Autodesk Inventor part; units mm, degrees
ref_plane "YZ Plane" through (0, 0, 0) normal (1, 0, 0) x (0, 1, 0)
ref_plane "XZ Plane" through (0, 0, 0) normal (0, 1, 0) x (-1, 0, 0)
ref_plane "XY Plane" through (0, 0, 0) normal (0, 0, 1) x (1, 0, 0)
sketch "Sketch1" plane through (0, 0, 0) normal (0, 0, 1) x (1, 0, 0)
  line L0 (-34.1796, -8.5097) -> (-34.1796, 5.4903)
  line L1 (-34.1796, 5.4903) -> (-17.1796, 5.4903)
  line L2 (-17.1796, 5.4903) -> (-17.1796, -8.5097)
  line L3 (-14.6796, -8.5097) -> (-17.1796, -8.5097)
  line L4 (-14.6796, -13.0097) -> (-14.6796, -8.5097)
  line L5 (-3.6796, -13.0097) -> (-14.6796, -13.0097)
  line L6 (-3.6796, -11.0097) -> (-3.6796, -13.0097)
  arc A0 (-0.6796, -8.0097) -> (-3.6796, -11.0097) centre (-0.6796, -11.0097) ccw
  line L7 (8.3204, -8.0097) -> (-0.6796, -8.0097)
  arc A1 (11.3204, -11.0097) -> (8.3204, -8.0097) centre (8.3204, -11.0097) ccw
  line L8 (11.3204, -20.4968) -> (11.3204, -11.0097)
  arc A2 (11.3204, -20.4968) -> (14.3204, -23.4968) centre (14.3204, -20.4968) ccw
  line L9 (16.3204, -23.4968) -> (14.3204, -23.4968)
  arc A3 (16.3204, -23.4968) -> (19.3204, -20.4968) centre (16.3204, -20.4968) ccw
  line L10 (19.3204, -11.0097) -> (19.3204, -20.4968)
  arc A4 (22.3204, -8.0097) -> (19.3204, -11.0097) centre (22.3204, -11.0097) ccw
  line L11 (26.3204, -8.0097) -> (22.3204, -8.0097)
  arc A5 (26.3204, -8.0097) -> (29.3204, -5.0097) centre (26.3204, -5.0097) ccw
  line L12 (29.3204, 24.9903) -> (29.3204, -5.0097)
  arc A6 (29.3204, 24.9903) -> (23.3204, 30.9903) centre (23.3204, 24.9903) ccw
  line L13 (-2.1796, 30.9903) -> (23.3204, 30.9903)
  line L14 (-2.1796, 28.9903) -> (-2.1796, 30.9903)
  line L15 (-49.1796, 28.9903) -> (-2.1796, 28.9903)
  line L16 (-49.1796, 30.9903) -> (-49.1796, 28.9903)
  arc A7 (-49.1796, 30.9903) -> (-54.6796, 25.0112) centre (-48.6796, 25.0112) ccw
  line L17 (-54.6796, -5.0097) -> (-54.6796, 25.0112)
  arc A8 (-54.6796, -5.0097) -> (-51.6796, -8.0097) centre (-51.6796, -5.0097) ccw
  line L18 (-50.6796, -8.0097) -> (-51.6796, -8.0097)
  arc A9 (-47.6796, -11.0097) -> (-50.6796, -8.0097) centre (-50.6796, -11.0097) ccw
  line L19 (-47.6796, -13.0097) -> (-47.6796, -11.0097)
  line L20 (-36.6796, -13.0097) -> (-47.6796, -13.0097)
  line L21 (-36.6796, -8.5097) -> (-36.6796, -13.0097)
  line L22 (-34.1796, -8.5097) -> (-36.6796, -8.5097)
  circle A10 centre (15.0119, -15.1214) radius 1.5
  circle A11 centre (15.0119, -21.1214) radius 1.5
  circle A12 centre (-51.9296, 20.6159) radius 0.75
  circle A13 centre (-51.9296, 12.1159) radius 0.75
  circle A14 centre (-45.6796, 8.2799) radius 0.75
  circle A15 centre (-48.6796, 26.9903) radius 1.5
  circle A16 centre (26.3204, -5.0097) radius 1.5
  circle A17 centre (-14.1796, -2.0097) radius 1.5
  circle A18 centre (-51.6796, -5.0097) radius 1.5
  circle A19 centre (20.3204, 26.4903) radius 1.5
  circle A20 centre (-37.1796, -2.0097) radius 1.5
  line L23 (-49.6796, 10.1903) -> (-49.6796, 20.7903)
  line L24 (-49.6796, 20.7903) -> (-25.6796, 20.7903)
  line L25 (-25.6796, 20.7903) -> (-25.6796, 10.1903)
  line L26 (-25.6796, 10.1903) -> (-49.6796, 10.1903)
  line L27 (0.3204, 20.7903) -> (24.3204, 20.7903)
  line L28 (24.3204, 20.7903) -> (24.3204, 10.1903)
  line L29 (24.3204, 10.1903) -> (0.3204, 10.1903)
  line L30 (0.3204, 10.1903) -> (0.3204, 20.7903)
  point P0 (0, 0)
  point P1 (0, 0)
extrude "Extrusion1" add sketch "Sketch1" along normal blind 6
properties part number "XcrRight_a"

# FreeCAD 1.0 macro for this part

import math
import FreeCAD as App
import Part
import Sketcher

V = App.Vector
Q = App.Units.Quantity


def add_polygon(sketch, points):
    """Adds a closed chain of lines whose ends are joined by coincident constraints."""
    first, n = sketch.GeometryCount, len(points)
    for a, b in zip(points, points[1:] + points[:1]):
        sketch.addGeometry(Part.LineSegment(App.Vector(*a, 0), App.Vector(*b, 0)), False)
    for i in range(n):
        sketch.addConstraint(Sketcher.Constraint("Coincident", first + i, 2, first + (i + 1) % n, 1))

doc = App.newDocument("Part")
body = doc.addObject("PartDesign::Body", "Body")

# Sketch on XY plane
sketch1 = body.newObject("Sketcher::SketchObject", "Sketch")
sketch1.AttachmentSupport = (doc.getObject("XY_Plane"), [""])
sketch1.MapMode = "FlatFace"
sketch1.addGeometry(Part.LineSegment(V(-36.7, -8.5, 0), V(-34.2, -8.5, 0)), False)  # 0
sketch1.addGeometry(Part.LineSegment(V(-34.2, -8.5, 0), V(-34.2, 5.5, 0)), False)  # 1
sketch1.addGeometry(Part.LineSegment(V(-34.2, 5.5, 0), V(-17.2, 5.5, 0)), False)  # 2
sketch1.addGeometry(Part.LineSegment(V(-17.2, 5.5, 0), V(-17.2, -8.5, 0)), False)  # 3
sketch1.addGeometry(Part.LineSegment(V(-17.2, -8.5, 0), V(-14.7, -8.5, 0)), False)  # 4
sketch1.addGeometry(Part.LineSegment(V(-14.7, -8.5, 0), V(-14.7, -13, 0)), False)  # 5
sketch1.addGeometry(Part.LineSegment(V(-14.7, -13, 0), V(-3.7, -13, 0)), False)  # 6
sketch1.addGeometry(Part.LineSegment(V(-3.7, -13, 0), V(-3.7, -11, 0)), False)  # 7
sketch1.addGeometry(Part.ArcOfCircle(Part.Circle(V(-0.7, -11, 0), V(0, 0, 1), 3), math.radians(90), math.radians(180)), False)  # 8
sketch1.addGeometry(Part.LineSegment(V(-0.7, -8, 0), V(8.3, -8, 0)), False)  # 9
sketch1.addGeometry(Part.ArcOfCircle(Part.Circle(V(8.3, -11, 0), V(0, 0, 1), 3), math.radians(0), math.radians(90)), False)  # 10
sketch1.addGeometry(Part.LineSegment(V(11.3, -11, 0), V(11.3, -20.5, 0)), False)  # 11
sketch1.addGeometry(Part.ArcOfCircle(Part.Circle(V(14.3, -20.5, 0), V(0, 0, 1), 3), math.radians(180), math.radians(270)), False)  # 12
sketch1.addGeometry(Part.LineSegment(V(14.3, -23.5, 0), V(16.3, -23.5, 0)), False)  # 13
sketch1.addGeometry(Part.ArcOfCircle(Part.Circle(V(16.3, -20.5, 0), V(0, 0, 1), 3), math.radians(-90), math.radians(0)), False)  # 14
sketch1.addGeometry(Part.LineSegment(V(19.3, -20.5, 0), V(19.3, -11, 0)), False)  # 15
sketch1.addGeometry(Part.ArcOfCircle(Part.Circle(V(22.3, -11, 0), V(0, 0, 1), 3), math.radians(90), math.radians(180)), False)  # 16
sketch1.addGeometry(Part.LineSegment(V(22.3, -8, 0), V(26.3, -8, 0)), False)  # 17
sketch1.addGeometry(Part.ArcOfCircle(Part.Circle(V(26.3, -5, 0), V(0, 0, 1), 3), math.radians(-90), math.radians(0)), False)  # 18
sketch1.addGeometry(Part.LineSegment(V(29.3, -5, 0), V(29.3, 25, 0)), False)  # 19
sketch1.addGeometry(Part.ArcOfCircle(Part.Circle(V(23.3, 25, 0), V(0, 0, 1), 6), math.radians(0), math.radians(90)), False)  # 20
sketch1.addGeometry(Part.LineSegment(V(23.3, 31, 0), V(-2.2, 31, 0)), False)  # 21
sketch1.addGeometry(Part.LineSegment(V(-2.2, 31, 0), V(-2.2, 29, 0)), False)  # 22
sketch1.addGeometry(Part.LineSegment(V(-2.2, 29, 0), V(-49.2, 29, 0)), False)  # 23
sketch1.addGeometry(Part.LineSegment(V(-49.2, 29, 0), V(-49.2, 31, 0)), False)  # 24
sketch1.addGeometry(Part.ArcOfCircle(Part.Circle(V(-48.7, 25, 0), V(0, 0, 1), 6), math.radians(95), math.radians(180)), False)  # 25
sketch1.addGeometry(Part.LineSegment(V(-54.7, 25, 0), V(-54.7, -5, 0)), False)  # 26
sketch1.addGeometry(Part.ArcOfCircle(Part.Circle(V(-51.7, -5, 0), V(0, 0, 1), 3), math.radians(180), math.radians(270)), False)  # 27
sketch1.addGeometry(Part.LineSegment(V(-51.7, -8, 0), V(-50.7, -8, 0)), False)  # 28
sketch1.addGeometry(Part.ArcOfCircle(Part.Circle(V(-50.7, -11, 0), V(0, 0, 1), 3), math.radians(0), math.radians(90)), False)  # 29
sketch1.addGeometry(Part.LineSegment(V(-47.7, -11, 0), V(-47.7, -13, 0)), False)  # 30
sketch1.addGeometry(Part.LineSegment(V(-47.7, -13, 0), V(-36.7, -13, 0)), False)  # 31
sketch1.addGeometry(Part.LineSegment(V(-36.7, -13, 0), V(-36.7, -8.5, 0)), False)  # 32
sketch1.addGeometry(Part.Circle(V(-51.7, -5, 0), V(0, 0, 1), 1.5), False)  # 33
sketch1.addGeometry(Part.Circle(V(-37.2, -2, 0), V(0, 0, 1), 1.5), False)  # 34
sketch1.addGeometry(Part.Circle(V(-14.2, -2, 0), V(0, 0, 1), 1.5), False)  # 35
sketch1.addGeometry(Part.Circle(V(15, -21.1, 0), V(0, 0, 1), 1.5), False)  # 36
sketch1.addGeometry(Part.Circle(V(15, -15.1, 0), V(0, 0, 1), 1.5), False)  # 37
sketch1.addGeometry(Part.Circle(V(26.3, -5, 0), V(0, 0, 1), 1.5), False)  # 38
sketch1.addGeometry(Part.Circle(V(-45.7, 8.3, 0), V(0, 0, 1), 0.8), False)  # 39
sketch1.addGeometry(Part.Circle(V(-51.9, 12.1, 0), V(0, 0, 1), 0.8), False)  # 40
add_polygon(sketch1, [(-25.7, 10.2), (-49.7, 10.2), (-49.7, 20.8), (-25.7, 20.8)])  # lines 41-44
sketch1.addGeometry(Part.Circle(V(-51.9, 20.6, 0), V(0, 0, 1), 0.8), False)  # 45
sketch1.addGeometry(Part.Circle(V(-48.7, 27, 0), V(0, 0, 1), 1.5), False)  # 46
add_polygon(sketch1, [(0.3, 10.2), (0.3, 20.8), (24.3, 20.8), (24.3, 10.2)])  # lines 47-50
sketch1.addGeometry(Part.Circle(V(20.3, 26.5, 0), V(0, 0, 1), 1.5), False)  # 51
sketch1.addConstraint([
    Sketcher.Constraint("Coincident", 0, 2, 1, 1),
    Sketcher.Constraint("Coincident", 1, 2, 2, 1),
    Sketcher.Constraint("Coincident", 2, 2, 3, 1),
    Sketcher.Constraint("Coincident", 3, 2, 4, 1),
    Sketcher.Constraint("Coincident", 4, 2, 5, 1),
    Sketcher.Constraint("Coincident", 5, 2, 6, 1),
    Sketcher.Constraint("Coincident", 6, 2, 7, 1),
    Sketcher.Constraint("Tangent", 7, 2, 8, 2),
    Sketcher.Constraint("Tangent", 8, 1, 9, 1),
    Sketcher.Constraint("Tangent", 9, 2, 10, 2),
    Sketcher.Constraint("Tangent", 10, 1, 11, 1),
    Sketcher.Constraint("Tangent", 11, 2, 12, 1),
    Sketcher.Constraint("Tangent", 12, 2, 13, 1),
    Sketcher.Constraint("Tangent", 13, 2, 14, 1),
    Sketcher.Constraint("Tangent", 14, 2, 15, 1),
    Sketcher.Constraint("Tangent", 15, 2, 16, 2),
    Sketcher.Constraint("Tangent", 16, 1, 17, 1),
    Sketcher.Constraint("Tangent", 17, 2, 18, 1),
    Sketcher.Constraint("Tangent", 18, 2, 19, 1),
    Sketcher.Constraint("Tangent", 19, 2, 20, 1),
    Sketcher.Constraint("Tangent", 20, 2, 21, 1),
    Sketcher.Constraint("Coincident", 21, 2, 22, 1),
    Sketcher.Constraint("Coincident", 22, 2, 23, 1),
    Sketcher.Constraint("Coincident", 23, 2, 24, 1),
    Sketcher.Constraint("Coincident", 24, 2, 25, 1),
    Sketcher.Constraint("Tangent", 25, 2, 26, 1),
    Sketcher.Constraint("Tangent", 26, 2, 27, 1),
    Sketcher.Constraint("Tangent", 27, 2, 28, 1),
    Sketcher.Constraint("Tangent", 28, 2, 29, 2),
    Sketcher.Constraint("Tangent", 29, 1, 30, 1),
    Sketcher.Constraint("Coincident", 30, 2, 31, 1),
    Sketcher.Constraint("Coincident", 31, 2, 32, 1),
    Sketcher.Constraint("Coincident", 32, 2, 0, 1),
    Sketcher.Constraint("Horizontal", 0),
    Sketcher.Constraint("Vertical", 1),
    Sketcher.Constraint("Horizontal", 2),
    Sketcher.Constraint("Vertical", 3),
    Sketcher.Constraint("Horizontal", 4),
    Sketcher.Constraint("Vertical", 5),
    Sketcher.Constraint("Horizontal", 6),
    Sketcher.Constraint("Vertical", 7),
    Sketcher.Constraint("Horizontal", 9),
    Sketcher.Constraint("Vertical", 11),
    Sketcher.Constraint("Horizontal", 13),
    Sketcher.Constraint("Vertical", 15),
    Sketcher.Constraint("Horizontal", 17),
    Sketcher.Constraint("Vertical", 19),
    Sketcher.Constraint("Horizontal", 21),
    Sketcher.Constraint("Vertical", 22),
    Sketcher.Constraint("Horizontal", 23),
    Sketcher.Constraint("Vertical", 24),
    Sketcher.Constraint("Vertical", 26),
    Sketcher.Constraint("Horizontal", 28),
    Sketcher.Constraint("Vertical", 30),
    Sketcher.Constraint("Horizontal", 31),
    Sketcher.Constraint("Vertical", 32),
    Sketcher.Constraint("Horizontal", 41),
    Sketcher.Constraint("Vertical", 42),
    Sketcher.Constraint("Horizontal", 43),
    Sketcher.Constraint("Vertical", 44),
    Sketcher.Constraint("Vertical", 47),
    Sketcher.Constraint("Horizontal", 48),
    Sketcher.Constraint("Vertical", 49),
    Sketcher.Constraint("Horizontal", 50),
    Sketcher.Constraint("Coincident", 33, 3, 27, 3),
    Sketcher.Constraint("Coincident", 38, 3, 18, 3),
    Sketcher.Constraint("Equal", 8, 10),
    Sketcher.Constraint("Equal", 10, 12),
    Sketcher.Constraint("Equal", 12, 14),
    Sketcher.Constraint("Equal", 14, 16),
    Sketcher.Constraint("Equal", 16, 18),
    Sketcher.Constraint("Equal", 20, 25),
    Sketcher.Constraint("Equal", 18, 27),
    Sketcher.Constraint("Equal", 27, 29),
    Sketcher.Constraint("Equal", 33, 34),
    Sketcher.Constraint("Equal", 34, 35),
    Sketcher.Constraint("Equal", 35, 36),
    Sketcher.Constraint("Equal", 36, 37),
    Sketcher.Constraint("Equal", 37, 38),
    Sketcher.Constraint("Equal", 39, 40),
    Sketcher.Constraint("Equal", 40, 45),
    Sketcher.Constraint("Equal", 38, 46),
    Sketcher.Constraint("Equal", 46, 51),
    Sketcher.Constraint("Horizontal", 10, 3, 16, 3),
    Sketcher.Constraint("Horizontal", 18, 3, 27, 3),
    Sketcher.Constraint("Horizontal", 34, 3, 35, 3),
    Sketcher.Constraint("Horizontal", 0, 2, 3, 2),
    Sketcher.Constraint("Horizontal", 21, 2, 24, 2),
    Sketcher.Constraint("Horizontal", 6, 2, 30, 2),
    Sketcher.Constraint("Horizontal", 43, 2, 47, 2),
    Sketcher.Constraint("Horizontal", 44, 2, 49, 2),
    Sketcher.Constraint("Vertical", 36, 3, 37, 3),
    Sketcher.Constraint("Vertical", 40, 3, 45, 3),
    Sketcher.Constraint("Vertical", 25, 3, 46, 3),
    Sketcher.Constraint("Equal", 0, 4),
    Sketcher.Constraint("Equal", 6, 31),
    Sketcher.Constraint("Equal", 43, 48),
    Sketcher.Constraint("Equal", 13, 7),
    Sketcher.Constraint("Equal", 7, 22),
    Sketcher.Constraint("Diameter", 33, Q("3 mm")),
    Sketcher.Constraint("Radius", 8, Q("3 mm")),
    Sketcher.Constraint("Radius", 20, Q("6 mm")),
    Sketcher.Constraint("Diameter", 39, Q("1.5 mm")),
    Sketcher.Constraint("DistanceX", 2, 1, 2, 2, Q("17 mm")),
    Sketcher.Constraint("DistanceX", 6, 1, 6, 2, Q("11 mm")),
    Sketcher.Constraint("DistanceX", 9, 1, 9, 2, Q("9 mm")),
    Sketcher.Constraint("DistanceX", 13, 1, 13, 2, Q("2 mm")),
    Sketcher.Constraint("DistanceX", 17, 1, 17, 2, Q("4 mm")),
    Sketcher.Constraint("DistanceX", 23, 2, 23, 1, Q("47 mm")),
    Sketcher.Constraint("DistanceX", 28, 1, 28, 2, Q("1 mm")),
    Sketcher.Constraint("DistanceX", 41, 2, 41, 1, Q("24 mm")),
    Sketcher.Constraint("DistanceY", 1, 1, 1, 2, Q("14 mm")),
    Sketcher.Constraint("DistanceY", 19, 1, 19, 2, Q("30 mm")),
    Sketcher.Constraint("DistanceX", 0, 1, 0, 2, Q("2.5 mm")),
    Sketcher.Constraint("DistanceX", 21, 2, 21, 1, Q("25.5 mm")),
    Sketcher.Constraint("DistanceY", 5, 2, 5, 1, Q("4.5 mm")),
    Sketcher.Constraint("DistanceY", 42, 1, 42, 2, Q("10.6 mm")),
    Sketcher.Constraint("DistanceY", 11, 2, 11, 1, Q("9.487 mm")),
    Sketcher.Constraint("DistanceY", -1, 1, 39, 3, Q("8.28 mm")),
    Sketcher.Constraint("DistanceX", -1, 1, 36, 3, Q("15.012 mm")),
    Sketcher.Constraint("DistanceY", -1, 1, 40, 3, Q("12.116 mm")),
    Sketcher.Constraint("DistanceY", -1, 1, 45, 3, Q("20.616 mm")),
    Sketcher.Constraint("DistanceX", 8, 3, -1, 1, Q("0.6796 mm")),
    Sketcher.Constraint("DistanceY", 8, 3, -1, 1, Q("11.0097 mm")),
    Sketcher.Constraint("DistanceX", 34, 3, -1, 1, Q("37.1796 mm")),
    Sketcher.Constraint("DistanceY", 34, 3, -1, 1, Q("2.0097 mm")),
    Sketcher.Constraint("DistanceX", 35, 3, -1, 1, Q("14.1796 mm")),
    Sketcher.Constraint("DistanceY", 36, 3, -1, 1, Q("21.1214 mm")),
    Sketcher.Constraint("DistanceY", 37, 3, -1, 1, Q("15.1214 mm")),
    Sketcher.Constraint("DistanceX", 39, 3, -1, 1, Q("45.6796 mm")),
    Sketcher.Constraint("DistanceX", 40, 3, -1, 1, Q("51.9296 mm")),
    Sketcher.Constraint("DistanceY", -1, 1, 46, 3, Q("26.9903 mm")),
    Sketcher.Constraint("DistanceX", -1, 1, 51, 3, Q("20.3204 mm")),
    Sketcher.Constraint("DistanceY", -1, 1, 51, 3, Q("26.4903 mm")),
    Sketcher.Constraint("DistanceX", 41, 2, -1, 1, Q("49.6796 mm")),
    Sketcher.Constraint("DistanceY", -1, 1, 41, 2, Q("10.1903 mm")),
    Sketcher.Constraint("DistanceX", -1, 1, 47, 2, Q("0.3204 mm")),
])
pad1 = body.newObject("PartDesign::Pad", "Pad")
pad1.Profile = sketch1
pad1.Length = 6

doc.recompute()
